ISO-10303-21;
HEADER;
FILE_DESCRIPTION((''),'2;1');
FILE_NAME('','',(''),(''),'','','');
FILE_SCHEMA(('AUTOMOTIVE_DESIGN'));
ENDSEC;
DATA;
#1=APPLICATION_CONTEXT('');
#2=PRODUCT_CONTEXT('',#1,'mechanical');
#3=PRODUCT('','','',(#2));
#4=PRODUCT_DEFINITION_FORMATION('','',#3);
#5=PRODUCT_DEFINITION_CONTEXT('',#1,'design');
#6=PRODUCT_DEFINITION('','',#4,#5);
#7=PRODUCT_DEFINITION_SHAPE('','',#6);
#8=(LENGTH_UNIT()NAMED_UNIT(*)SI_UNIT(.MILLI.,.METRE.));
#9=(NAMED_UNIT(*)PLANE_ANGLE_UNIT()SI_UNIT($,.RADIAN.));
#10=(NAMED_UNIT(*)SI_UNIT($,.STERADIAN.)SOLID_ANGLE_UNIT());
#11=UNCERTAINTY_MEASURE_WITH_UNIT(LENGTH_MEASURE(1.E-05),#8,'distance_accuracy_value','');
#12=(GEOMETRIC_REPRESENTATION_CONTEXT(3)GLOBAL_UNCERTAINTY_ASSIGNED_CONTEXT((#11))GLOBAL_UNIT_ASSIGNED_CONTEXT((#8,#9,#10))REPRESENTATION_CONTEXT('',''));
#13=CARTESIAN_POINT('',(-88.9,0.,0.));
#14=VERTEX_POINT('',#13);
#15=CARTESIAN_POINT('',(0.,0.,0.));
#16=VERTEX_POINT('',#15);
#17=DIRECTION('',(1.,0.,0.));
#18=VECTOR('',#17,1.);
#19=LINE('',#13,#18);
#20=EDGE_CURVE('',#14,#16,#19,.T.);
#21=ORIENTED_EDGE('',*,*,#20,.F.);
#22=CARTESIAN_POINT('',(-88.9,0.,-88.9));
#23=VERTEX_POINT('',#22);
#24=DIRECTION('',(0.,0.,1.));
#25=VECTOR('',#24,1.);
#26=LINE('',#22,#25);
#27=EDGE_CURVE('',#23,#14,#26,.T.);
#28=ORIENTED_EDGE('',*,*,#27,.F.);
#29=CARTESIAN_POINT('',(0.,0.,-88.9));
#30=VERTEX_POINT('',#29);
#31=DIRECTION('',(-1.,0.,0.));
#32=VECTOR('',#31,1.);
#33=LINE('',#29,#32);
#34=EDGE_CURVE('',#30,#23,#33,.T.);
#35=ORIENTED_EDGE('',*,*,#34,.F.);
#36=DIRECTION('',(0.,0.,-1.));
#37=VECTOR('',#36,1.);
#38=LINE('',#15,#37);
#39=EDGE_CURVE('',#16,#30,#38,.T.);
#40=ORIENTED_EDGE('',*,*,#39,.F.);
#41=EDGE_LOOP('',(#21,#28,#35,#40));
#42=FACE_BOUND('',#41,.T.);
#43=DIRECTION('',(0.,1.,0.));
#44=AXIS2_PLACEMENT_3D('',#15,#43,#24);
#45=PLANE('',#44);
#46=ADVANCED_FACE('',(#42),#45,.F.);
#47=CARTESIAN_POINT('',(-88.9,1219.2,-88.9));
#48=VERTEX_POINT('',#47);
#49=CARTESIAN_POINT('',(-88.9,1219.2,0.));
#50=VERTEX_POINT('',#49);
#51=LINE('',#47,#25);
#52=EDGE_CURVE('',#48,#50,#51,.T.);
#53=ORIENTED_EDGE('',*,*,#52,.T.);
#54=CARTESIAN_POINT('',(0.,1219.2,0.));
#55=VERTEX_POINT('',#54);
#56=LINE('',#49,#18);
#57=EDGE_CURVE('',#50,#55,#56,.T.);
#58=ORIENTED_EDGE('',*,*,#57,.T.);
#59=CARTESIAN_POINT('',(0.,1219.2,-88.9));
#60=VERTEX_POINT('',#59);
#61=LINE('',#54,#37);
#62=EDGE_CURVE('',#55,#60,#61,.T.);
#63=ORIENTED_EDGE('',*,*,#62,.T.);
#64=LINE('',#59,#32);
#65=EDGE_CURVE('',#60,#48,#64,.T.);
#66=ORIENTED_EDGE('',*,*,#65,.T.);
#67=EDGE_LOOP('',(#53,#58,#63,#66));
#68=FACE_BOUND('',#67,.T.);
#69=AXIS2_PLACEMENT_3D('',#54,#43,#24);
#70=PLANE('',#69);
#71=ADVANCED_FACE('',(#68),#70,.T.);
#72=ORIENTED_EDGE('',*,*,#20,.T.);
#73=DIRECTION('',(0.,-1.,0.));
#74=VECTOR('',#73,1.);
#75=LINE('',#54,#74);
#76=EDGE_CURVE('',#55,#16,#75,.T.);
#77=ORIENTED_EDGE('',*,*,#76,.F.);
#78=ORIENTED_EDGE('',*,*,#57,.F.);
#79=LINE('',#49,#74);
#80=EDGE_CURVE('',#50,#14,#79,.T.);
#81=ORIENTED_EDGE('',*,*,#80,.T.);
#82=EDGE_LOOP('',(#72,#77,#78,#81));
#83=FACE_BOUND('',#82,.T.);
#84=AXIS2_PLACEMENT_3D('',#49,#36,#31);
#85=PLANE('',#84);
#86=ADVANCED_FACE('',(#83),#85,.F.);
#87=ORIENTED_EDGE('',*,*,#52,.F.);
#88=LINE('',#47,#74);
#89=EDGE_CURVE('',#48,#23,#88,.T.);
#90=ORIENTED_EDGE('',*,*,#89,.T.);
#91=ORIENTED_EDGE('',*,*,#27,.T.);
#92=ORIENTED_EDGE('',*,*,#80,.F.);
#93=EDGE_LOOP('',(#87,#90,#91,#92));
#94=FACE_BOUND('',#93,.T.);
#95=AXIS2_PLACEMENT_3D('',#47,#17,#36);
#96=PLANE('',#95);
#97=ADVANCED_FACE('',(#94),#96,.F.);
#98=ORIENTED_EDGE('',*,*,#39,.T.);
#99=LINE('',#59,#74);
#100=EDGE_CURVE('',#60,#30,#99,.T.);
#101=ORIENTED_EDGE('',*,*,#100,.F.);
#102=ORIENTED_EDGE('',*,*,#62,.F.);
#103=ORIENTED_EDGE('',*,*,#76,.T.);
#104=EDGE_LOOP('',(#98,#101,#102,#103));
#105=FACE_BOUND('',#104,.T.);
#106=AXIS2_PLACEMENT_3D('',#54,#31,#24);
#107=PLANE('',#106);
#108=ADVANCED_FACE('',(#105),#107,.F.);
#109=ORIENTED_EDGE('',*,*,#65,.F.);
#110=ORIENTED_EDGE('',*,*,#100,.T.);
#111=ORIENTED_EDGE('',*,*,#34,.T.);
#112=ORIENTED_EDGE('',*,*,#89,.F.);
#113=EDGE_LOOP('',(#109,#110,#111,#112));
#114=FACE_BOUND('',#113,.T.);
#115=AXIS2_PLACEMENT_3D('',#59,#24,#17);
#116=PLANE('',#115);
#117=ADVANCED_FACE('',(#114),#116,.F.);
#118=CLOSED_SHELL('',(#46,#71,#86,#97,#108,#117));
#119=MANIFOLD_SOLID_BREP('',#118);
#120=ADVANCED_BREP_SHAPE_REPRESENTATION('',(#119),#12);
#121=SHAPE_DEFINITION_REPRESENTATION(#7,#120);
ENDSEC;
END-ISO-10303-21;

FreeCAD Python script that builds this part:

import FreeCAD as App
import Part
import Sketcher

V = App.Vector
Q = App.Units.Quantity


def add_polygon(sketch, points):
    """Adds a closed chain of lines whose ends are joined by coincident constraints."""
    first, n = sketch.GeometryCount, len(points)
    for a, b in zip(points, points[1:] + points[:1]):
        sketch.addGeometry(Part.LineSegment(App.Vector(*a, 0), App.Vector(*b, 0)), False)
    for i in range(n):
        sketch.addConstraint(Sketcher.Constraint("Coincident", first + i, 2, first + (i + 1) % n, 1))

doc = App.newDocument("Part")
body = doc.addObject("PartDesign::Body", "Body")

# Sketch on XZ plane
sketch1 = body.newObject("Sketcher::SketchObject", "Sketch")
sketch1.AttachmentSupport = (doc.getObject("XZ_Plane"), [""])
sketch1.MapMode = "FlatFace"
add_polygon(sketch1, [(-89, -89), (-89, 0), (0, 0), (0, -89)])  # lines 0-3
sketch1.addConstraint([
    Sketcher.Constraint("Vertical", 0),
    Sketcher.Constraint("Horizontal", 1),
    Sketcher.Constraint("Vertical", 2),
    Sketcher.Constraint("Horizontal", 3),
    Sketcher.Constraint("Coincident", 1, 2, -1, 1),
    Sketcher.Constraint("Equal", 3, 0),
    Sketcher.Constraint("DistanceX", 1, 1, 1, 2, Q("3.5 in")),
])
pad1 = body.newObject("PartDesign::Pad", "Pad")
pad1.Profile = sketch1
pad1.Length = Q("48 in")
pad1.Reversed = True

doc.recompute()
